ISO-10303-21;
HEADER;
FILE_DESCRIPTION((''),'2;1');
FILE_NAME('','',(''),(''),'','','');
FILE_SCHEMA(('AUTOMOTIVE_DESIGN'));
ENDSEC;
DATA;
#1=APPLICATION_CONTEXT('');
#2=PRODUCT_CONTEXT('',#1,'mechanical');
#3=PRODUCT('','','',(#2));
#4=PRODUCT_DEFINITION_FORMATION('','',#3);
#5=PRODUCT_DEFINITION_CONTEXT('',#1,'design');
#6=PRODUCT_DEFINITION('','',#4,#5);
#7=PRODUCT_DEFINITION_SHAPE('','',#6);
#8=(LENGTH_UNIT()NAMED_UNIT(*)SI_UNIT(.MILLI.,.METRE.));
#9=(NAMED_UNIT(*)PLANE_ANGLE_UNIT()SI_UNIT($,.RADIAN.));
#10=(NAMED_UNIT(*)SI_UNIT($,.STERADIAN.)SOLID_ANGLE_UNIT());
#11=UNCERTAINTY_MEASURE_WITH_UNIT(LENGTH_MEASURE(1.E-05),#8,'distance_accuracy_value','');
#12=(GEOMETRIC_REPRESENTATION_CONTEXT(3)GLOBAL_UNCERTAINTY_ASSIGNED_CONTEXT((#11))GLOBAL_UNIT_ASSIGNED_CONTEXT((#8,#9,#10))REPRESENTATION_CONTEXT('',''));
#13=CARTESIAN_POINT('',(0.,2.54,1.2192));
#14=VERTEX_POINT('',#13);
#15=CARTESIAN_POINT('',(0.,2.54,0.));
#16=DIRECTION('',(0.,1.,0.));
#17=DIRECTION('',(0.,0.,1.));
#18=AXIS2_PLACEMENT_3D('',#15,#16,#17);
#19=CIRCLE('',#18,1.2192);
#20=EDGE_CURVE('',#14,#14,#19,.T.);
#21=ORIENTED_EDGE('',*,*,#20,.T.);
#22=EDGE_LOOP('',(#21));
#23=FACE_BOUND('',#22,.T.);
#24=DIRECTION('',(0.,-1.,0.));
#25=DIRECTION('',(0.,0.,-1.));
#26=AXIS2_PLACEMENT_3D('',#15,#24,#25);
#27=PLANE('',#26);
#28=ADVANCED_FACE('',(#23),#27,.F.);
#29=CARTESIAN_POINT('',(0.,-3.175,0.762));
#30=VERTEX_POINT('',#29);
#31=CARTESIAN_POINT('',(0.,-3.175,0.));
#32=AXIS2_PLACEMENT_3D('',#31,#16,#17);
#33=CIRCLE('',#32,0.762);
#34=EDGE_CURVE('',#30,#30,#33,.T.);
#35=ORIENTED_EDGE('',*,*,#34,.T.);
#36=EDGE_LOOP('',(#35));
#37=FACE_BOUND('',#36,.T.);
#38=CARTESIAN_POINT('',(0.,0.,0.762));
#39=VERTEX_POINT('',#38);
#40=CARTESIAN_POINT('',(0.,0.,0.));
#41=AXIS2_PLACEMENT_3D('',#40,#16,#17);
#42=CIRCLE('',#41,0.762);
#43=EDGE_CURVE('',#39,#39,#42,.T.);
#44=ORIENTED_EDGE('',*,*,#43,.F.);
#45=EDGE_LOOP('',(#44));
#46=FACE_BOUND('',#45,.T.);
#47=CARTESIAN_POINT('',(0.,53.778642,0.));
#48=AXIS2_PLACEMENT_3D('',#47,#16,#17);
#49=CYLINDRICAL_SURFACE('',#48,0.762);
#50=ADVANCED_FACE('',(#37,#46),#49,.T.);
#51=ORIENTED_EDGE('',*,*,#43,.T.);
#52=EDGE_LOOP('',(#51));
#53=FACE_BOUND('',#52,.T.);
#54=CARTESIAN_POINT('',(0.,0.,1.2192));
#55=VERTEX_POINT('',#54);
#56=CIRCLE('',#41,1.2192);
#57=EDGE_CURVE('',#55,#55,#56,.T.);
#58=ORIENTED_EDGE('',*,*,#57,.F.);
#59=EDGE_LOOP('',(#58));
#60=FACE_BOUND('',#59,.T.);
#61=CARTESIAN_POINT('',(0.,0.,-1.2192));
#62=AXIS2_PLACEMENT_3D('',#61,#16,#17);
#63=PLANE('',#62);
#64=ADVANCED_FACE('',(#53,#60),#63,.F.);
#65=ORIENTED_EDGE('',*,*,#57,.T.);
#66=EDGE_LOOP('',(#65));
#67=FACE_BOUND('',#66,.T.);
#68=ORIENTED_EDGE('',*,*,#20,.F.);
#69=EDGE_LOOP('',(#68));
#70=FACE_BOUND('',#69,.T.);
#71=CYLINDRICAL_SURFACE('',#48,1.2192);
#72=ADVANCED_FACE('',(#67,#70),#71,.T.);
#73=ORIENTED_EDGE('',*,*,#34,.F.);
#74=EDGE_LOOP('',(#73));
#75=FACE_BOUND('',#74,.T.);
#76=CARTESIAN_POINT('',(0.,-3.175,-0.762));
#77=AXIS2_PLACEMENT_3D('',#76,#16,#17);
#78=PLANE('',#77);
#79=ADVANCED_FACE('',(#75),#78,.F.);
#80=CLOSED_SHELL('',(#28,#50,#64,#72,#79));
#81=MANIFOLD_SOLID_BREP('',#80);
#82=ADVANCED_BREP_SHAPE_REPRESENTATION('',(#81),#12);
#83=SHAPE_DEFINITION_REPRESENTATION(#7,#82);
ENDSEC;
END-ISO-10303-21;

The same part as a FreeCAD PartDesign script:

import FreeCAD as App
import Part
import Sketcher
Q = App.Units.Quantity

doc = App.newDocument("Part")
body = doc.addObject("PartDesign::Body", "Body")

sketch1 = body.newObject("Sketcher::SketchObject", "Sketch")
sketch1.AttachmentSupport = (doc.getObject("YZ_Plane"), [""])
sketch1.MapMode = "FlatFace"
sketch1.addGeometry([
    Part.LineSegment(App.Vector(-3.17, -0.76, 0), App.Vector(0, -0.76, 0)),
    Part.LineSegment(App.Vector(0, -0.76, 0), App.Vector(0, -1.22, 0)),
    Part.LineSegment(App.Vector(0, -1.22, 0), App.Vector(2.54, -1.22, 0)),
    Part.LineSegment(App.Vector(2.54, -1.22, 0), App.Vector(2.54, 0, 0)),
    Part.LineSegment(App.Vector(2.54, 0, 0), App.Vector(-3.17, 0, 0)),
    Part.LineSegment(App.Vector(-3.17, 0, 0), App.Vector(-3.17, -0.76, 0)),
], False)
sketch1.addConstraint([
    Sketcher.Constraint("Coincident", 0, 2, 1, 1),
    Sketcher.Constraint("Coincident", 1, 2, 2, 1),
    Sketcher.Constraint("Coincident", 2, 2, 3, 1),
    Sketcher.Constraint("Coincident", 3, 2, 4, 1),
    Sketcher.Constraint("Coincident", 4, 2, 5, 1),
    Sketcher.Constraint("Coincident", 5, 2, 0, 1),
    Sketcher.Constraint("Horizontal", 0),
    Sketcher.Constraint("Vertical", 1),
    Sketcher.Constraint("Horizontal", 2),
    Sketcher.Constraint("Vertical", 3),
    Sketcher.Constraint("Horizontal", 4),
    Sketcher.Constraint("Vertical", 5),
    Sketcher.Constraint("PointOnObject", 0, 2, -2),
    Sketcher.Constraint("PointOnObject", 3, 2, -1),
    Sketcher.Constraint("DistanceX", 2, 1, 2, 2, Q("0.1 in")),
    Sketcher.Constraint("DistanceY", 5, 2, 5, 1, Q("0.03 in")),
    Sketcher.Constraint("DistanceX", 0, 1, 0, 2, Q("0.125 in")),
    Sketcher.Constraint("DistanceY", 1, 2, 1, 1, Q("0.018 in")),
])
revolution = body.newObject("PartDesign::Revolution", "Revolution")
revolution.Profile = sketch1
revolution.ReferenceAxis = (sketch1, ["H_Axis"])
revolution.Angle = 360

doc.recompute()
